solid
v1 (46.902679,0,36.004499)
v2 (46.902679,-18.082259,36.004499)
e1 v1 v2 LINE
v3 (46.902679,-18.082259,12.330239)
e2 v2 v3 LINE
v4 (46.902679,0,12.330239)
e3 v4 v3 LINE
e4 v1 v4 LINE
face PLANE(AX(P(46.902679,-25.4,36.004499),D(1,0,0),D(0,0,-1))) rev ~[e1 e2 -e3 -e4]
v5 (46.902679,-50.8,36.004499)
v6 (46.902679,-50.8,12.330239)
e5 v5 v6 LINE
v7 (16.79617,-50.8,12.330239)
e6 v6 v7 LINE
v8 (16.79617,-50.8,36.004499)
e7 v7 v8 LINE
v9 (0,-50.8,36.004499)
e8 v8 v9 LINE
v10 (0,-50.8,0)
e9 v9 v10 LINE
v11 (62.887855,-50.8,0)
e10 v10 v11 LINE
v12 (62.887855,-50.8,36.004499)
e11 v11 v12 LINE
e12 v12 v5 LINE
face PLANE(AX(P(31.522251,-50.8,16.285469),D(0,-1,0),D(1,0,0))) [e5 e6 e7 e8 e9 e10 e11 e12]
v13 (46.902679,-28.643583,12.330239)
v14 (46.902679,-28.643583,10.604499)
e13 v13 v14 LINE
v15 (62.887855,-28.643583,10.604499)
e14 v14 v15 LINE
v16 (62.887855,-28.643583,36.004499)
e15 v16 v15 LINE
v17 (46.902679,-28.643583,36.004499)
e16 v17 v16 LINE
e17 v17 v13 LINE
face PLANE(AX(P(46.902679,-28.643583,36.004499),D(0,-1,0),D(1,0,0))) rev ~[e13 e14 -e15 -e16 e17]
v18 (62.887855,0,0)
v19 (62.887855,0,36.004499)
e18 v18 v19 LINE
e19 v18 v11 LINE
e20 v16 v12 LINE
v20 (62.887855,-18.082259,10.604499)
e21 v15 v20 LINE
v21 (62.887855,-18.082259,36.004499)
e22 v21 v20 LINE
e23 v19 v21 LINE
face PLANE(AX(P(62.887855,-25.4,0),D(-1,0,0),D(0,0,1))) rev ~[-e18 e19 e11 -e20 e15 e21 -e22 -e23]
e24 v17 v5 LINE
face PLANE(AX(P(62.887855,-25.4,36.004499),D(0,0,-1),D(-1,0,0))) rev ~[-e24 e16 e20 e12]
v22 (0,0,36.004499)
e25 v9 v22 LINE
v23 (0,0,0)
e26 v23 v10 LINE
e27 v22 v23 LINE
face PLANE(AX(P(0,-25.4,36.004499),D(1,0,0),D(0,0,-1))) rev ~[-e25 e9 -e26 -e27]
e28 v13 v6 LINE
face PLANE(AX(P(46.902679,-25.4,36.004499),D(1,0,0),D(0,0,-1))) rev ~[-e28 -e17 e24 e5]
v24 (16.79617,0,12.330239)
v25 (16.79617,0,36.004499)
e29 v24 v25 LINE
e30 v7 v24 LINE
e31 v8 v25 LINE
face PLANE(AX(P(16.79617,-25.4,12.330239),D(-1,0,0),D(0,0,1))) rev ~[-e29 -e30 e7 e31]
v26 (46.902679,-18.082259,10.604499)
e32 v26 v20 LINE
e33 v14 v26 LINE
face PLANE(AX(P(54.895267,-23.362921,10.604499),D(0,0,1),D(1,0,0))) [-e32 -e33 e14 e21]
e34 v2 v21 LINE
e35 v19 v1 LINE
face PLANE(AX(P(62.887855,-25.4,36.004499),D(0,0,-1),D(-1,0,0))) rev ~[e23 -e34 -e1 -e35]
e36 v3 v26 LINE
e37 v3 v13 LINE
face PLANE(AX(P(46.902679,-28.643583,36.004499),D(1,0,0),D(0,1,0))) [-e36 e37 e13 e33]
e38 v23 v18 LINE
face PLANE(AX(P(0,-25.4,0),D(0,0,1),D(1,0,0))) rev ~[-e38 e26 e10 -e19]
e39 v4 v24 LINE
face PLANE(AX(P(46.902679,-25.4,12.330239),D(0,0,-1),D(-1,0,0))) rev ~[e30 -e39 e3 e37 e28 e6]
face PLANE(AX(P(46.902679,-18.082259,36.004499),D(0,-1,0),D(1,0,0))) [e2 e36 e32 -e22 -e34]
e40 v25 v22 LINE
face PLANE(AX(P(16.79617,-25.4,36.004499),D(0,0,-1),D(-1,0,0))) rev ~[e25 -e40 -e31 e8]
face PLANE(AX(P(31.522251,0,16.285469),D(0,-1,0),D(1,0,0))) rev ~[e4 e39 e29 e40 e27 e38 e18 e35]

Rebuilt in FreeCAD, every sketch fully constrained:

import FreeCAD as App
import Part
import Sketcher

V = App.Vector
Q = App.Units.Quantity

doc = App.newDocument("Part")
body = doc.addObject("PartDesign::Body", "Body")

sketch1 = body.newObject("Sketcher::SketchObject", "Sketch")
sketch1.AttachmentSupport = (doc.getObject("XZ_Plane"), [""])
sketch1.MapMode = "FlatFace"
sketch1.addGeometry([
    Part.LineSegment(V(0, 36, 0), V(0, 0, 0)),
    Part.LineSegment(V(0, 0, 0), V(63, 0, 0)),
    Part.LineSegment(V(63, 0, 0), V(63, 36, 0)),
    Part.LineSegment(V(63, 36, 0), V(47, 36, 0)),
    Part.LineSegment(V(47, 36, 0), V(47, 12, 0)),
    Part.LineSegment(V(47, 12, 0), V(17, 12, 0)),
    Part.LineSegment(V(17, 12, 0), V(17, 36, 0)),
    Part.LineSegment(V(17, 36, 0), V(0, 36, 0)),
], False)
sketch1.addConstraint([
    Sketcher.Constraint("Coincident", 0, 2, 1, 1),
    Sketcher.Constraint("Coincident", 1, 2, 2, 1),
    Sketcher.Constraint("Coincident", 2, 2, 3, 1),
    Sketcher.Constraint("Coincident", 3, 2, 4, 1),
    Sketcher.Constraint("Coincident", 4, 2, 5, 1),
    Sketcher.Constraint("Coincident", 5, 2, 6, 1),
    Sketcher.Constraint("Coincident", 6, 2, 7, 1),
    Sketcher.Constraint("Coincident", 7, 2, 0, 1),
    Sketcher.Constraint("Vertical", 0),
    Sketcher.Constraint("Horizontal", 1),
    Sketcher.Constraint("Vertical", 2),
    Sketcher.Constraint("Horizontal", 3),
    Sketcher.Constraint("Vertical", 4),
    Sketcher.Constraint("Horizontal", 5),
    Sketcher.Constraint("Vertical", 6),
    Sketcher.Constraint("Horizontal", 7),
    Sketcher.Constraint("Coincident", 0, 2, -1, 1),
    Sketcher.Constraint("Horizontal", 3, 2, 6, 2),
    Sketcher.Constraint("DistanceX", 1, 1, 1, 2, Q("2.4758998 in")),
    Sketcher.Constraint("DistanceY", 0, 2, 0, 1, Q("1.4175 in")),
    Sketcher.Constraint("DistanceX", 5, 2, 5, 1, 30.106509),
    Sketcher.Constraint("DistanceX", 7, 2, 7, 1, 16.79617),
    Sketcher.Constraint("DistanceY", 4, 2, 4, 1, 23.67426),
])
pad1 = body.newObject("PartDesign::Pad", "Pad")
pad1.Profile = sketch1
pad1.Length = Q("1 in")

sketch2 = body.newObject("Sketcher::SketchObject", "Sketch001")
sketch2.AttachmentSupport = (doc.getObject("XZ_Plane"), [""])
sketch2.MapMode = "FlatFace"
sketch2.AttachmentOffset = App.Placement(V(0, 0, 1 * 25.4), App.Rotation())
sketch2.addGeometry([
    Part.LineSegment(V(0, 36, 0), V(0, 0, 0)),
    Part.LineSegment(V(0, 0, 0), V(63, 0, 0)),
    Part.LineSegment(V(63, 0, 0), V(63, 36, 0)),
    Part.LineSegment(V(63, 36, 0), V(47, 36, 0)),
    Part.LineSegment(V(47, 36, 0), V(47, 12, 0)),
    Part.LineSegment(V(47, 12, 0), V(17, 12, 0)),
    Part.LineSegment(V(17, 12, 0), V(17, 36, 0)),
    Part.LineSegment(V(17, 36, 0), V(0, 36, 0)),
], False)
sketch2.addConstraint([
    Sketcher.Constraint("Coincident", 0, 2, 1, 1),
    Sketcher.Constraint("Coincident", 1, 2, 2, 1),
    Sketcher.Constraint("Coincident", 2, 2, 3, 1),
    Sketcher.Constraint("Coincident", 3, 2, 4, 1),
    Sketcher.Constraint("Coincident", 4, 2, 5, 1),
    Sketcher.Constraint("Coincident", 5, 2, 6, 1),
    Sketcher.Constraint("Coincident", 6, 2, 7, 1),
    Sketcher.Constraint("Coincident", 7, 2, 0, 1),
    Sketcher.Constraint("Vertical", 0),
    Sketcher.Constraint("Horizontal", 1),
    Sketcher.Constraint("Vertical", 2),
    Sketcher.Constraint("Horizontal", 3),
    Sketcher.Constraint("Vertical", 4),
    Sketcher.Constraint("Horizontal", 5),
    Sketcher.Constraint("Vertical", 6),
    Sketcher.Constraint("Horizontal", 7),
    Sketcher.Constraint("Coincident", 0, 2, -1, 1),
    Sketcher.Constraint("Horizontal", 3, 2, 6, 2),
    Sketcher.Constraint("DistanceX", 1, 1, 1, 2, Q("2.4758998 in")),
    Sketcher.Constraint("DistanceY", 0, 2, 0, 1, Q("1.4175 in")),
    Sketcher.Constraint("DistanceX", 5, 2, 5, 1, 30.106509),
    Sketcher.Constraint("DistanceX", 7, 2, 7, 1, 16.79617),
    Sketcher.Constraint("DistanceY", 4, 2, 4, 1, 23.67426),
])
pad2 = body.newObject("PartDesign::Pad", "Pad001")
pad2.Profile = sketch2
pad2.Length = Q("1 in")

sketch3 = body.newObject("Sketcher::SketchObject", "Sketch002")
sketch3.AttachmentSupport = (doc.getObject("XY_Plane"), [""])
sketch3.MapMode = "FlatFace"
sketch3.AttachmentOffset = App.Placement(V(0, 0, 1.4175 * 25.4), App.Rotation())
sketch3.addGeometry([
    Part.LineSegment(V(47, -18, 0), V(47, -29, 0)),
    Part.LineSegment(V(47, -29, 0), V(63, -29, 0)),
    Part.LineSegment(V(63, -29, 0), V(63, -18, 0)),
    Part.LineSegment(V(63, -18, 0), V(47, -18, 0)),
], False)
sketch3.addConstraint([
    Sketcher.Constraint("Coincident", 0, 2, 1, 1),
    Sketcher.Constraint("Coincident", 1, 2, 2, 1),
    Sketcher.Constraint("Coincident", 2, 2, 3, 1),
    Sketcher.Constraint("Coincident", 3, 2, 0, 1),
    Sketcher.Constraint("Vertical", 0),
    Sketcher.Constraint("Horizontal", 1),
    Sketcher.Constraint("Vertical", 2),
    Sketcher.Constraint("Horizontal", 3),
    Sketcher.Constraint("DistanceY", 0, 2, 0, 1, Q("0.4158001 in")),
    Sketcher.Constraint("DistanceY", 0, 2, -1, 1, Q("1.1277001 in")),
    Sketcher.Constraint("DistanceX", -1, 1, 1, 2, Q("2.4758998 in")),
    Sketcher.Constraint("DistanceX", 1, 1, 1, 2, 15.985176),
])
pocket1 = body.newObject("PartDesign::Pocket", "Pocket")
pocket1.Profile = sketch3
pocket1.Length = Q("1 in")

doc.recompute()
